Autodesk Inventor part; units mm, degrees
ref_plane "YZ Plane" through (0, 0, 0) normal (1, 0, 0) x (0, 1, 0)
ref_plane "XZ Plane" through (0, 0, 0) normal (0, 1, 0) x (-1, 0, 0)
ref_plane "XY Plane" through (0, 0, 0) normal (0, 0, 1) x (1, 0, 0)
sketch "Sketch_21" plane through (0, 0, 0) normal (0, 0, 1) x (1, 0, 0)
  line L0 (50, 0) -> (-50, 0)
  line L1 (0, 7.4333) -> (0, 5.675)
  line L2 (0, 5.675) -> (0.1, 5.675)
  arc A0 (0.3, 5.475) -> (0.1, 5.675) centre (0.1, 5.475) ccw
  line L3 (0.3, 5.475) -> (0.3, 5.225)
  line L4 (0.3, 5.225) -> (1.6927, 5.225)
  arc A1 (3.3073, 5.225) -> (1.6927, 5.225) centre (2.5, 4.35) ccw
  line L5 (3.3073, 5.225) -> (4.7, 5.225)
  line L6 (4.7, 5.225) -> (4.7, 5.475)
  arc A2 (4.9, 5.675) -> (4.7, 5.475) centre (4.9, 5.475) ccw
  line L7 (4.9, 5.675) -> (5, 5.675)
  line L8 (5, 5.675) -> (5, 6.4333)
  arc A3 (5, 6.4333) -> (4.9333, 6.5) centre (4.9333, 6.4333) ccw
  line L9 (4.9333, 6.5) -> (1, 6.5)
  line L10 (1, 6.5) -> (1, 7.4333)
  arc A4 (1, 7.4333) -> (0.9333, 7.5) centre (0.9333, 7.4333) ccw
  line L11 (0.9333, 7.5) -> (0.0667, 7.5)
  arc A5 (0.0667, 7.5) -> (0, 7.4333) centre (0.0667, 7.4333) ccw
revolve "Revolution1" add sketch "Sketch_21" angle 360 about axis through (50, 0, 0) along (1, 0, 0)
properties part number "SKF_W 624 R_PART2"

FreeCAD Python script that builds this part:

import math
import FreeCAD as App
import Part
import Sketcher

V = App.Vector
Q = App.Units.Quantity

doc = App.newDocument("Part")
params = doc.addObject("Spreadsheet::Sheet", "Params")
for row, (alias, value) in enumerate([
    ("sketch1_radius", "0.2 mm"),
    ("sketch1_width", "0.1 mm"),
    ("sketch1_height", "0.25 mm"),
    ("revolution_angle", "360 deg"),
], start=1):
    params.set(f"A{row}", alias)
    params.set(f"B{row}", "=" + value)
    params.setAlias(f"B{row}", alias)

body = doc.addObject("PartDesign::Body", "Body")

# Sketch on XY plane
sketch1 = doc.addObject("Sketcher::SketchObject", "Sketch")
body.addObject(sketch1)
sketch1.AttachmentSupport = (doc.XY_Plane, [""])
sketch1.MapMode = "FlatFace"
sketch1.addGeometry([
    Part.ArcOfCircle(Part.Circle(V(0.0667, 7.4333, 0), V(0, 0, 1), 0.0667), math.radians(90), math.radians(180)),  # 0
    Part.LineSegment(V(0, 7.4333, 0), V(0, 5.675, 0)),  # 1
    Part.LineSegment(V(0, 5.675, 0), V(0.1, 5.675, 0)),  # 2
    Part.ArcOfCircle(Part.Circle(V(0.1, 5.475, 0), V(0, 0, 1), 0.2), math.radians(0), math.radians(90)),  # 3
    Part.LineSegment(V(0.3, 5.475, 0), V(0.3, 5.225, 0)),  # 4
    Part.LineSegment(V(0.3, 5.225, 0), V(1.6927, 5.225, 0)),  # 5
    Part.ArcOfCircle(Part.Circle(V(2.5, 4.35, 0), V(0, 0, 1), 1.190529), math.radians(47.304483), math.radians(132.695517)),  # 6
    Part.LineSegment(V(3.3073, 5.225, 0), V(4.7, 5.225, 0)),  # 7
    Part.LineSegment(V(4.7, 5.225, 0), V(4.7, 5.475, 0)),  # 8
    Part.ArcOfCircle(Part.Circle(V(4.9, 5.475, 0), V(0, 0, 1), 0.2), math.radians(90), math.radians(180)),  # 9
    Part.LineSegment(V(4.9, 5.675, 0), V(5, 5.675, 0)),  # 10
    Part.LineSegment(V(5, 5.675, 0), V(5, 6.4333, 0)),  # 11
    Part.ArcOfCircle(Part.Circle(V(4.9333, 6.4333, 0), V(0, 0, 1), 0.0667), math.radians(0), math.radians(90)),  # 12
    Part.LineSegment(V(4.9333, 6.5, 0), V(1, 6.5, 0)),  # 13
    Part.LineSegment(V(1, 6.5, 0), V(1, 7.4333, 0)),  # 14
    Part.ArcOfCircle(Part.Circle(V(0.9333, 7.4333, 0), V(0, 0, 1), 0.0667), math.radians(0), math.radians(90)),  # 15
    Part.LineSegment(V(0.9333, 7.5, 0), V(0.0667, 7.5, 0)),  # 16
], False)
sketch1.addConstraint([
    Sketcher.Constraint("Tangent", 0, 2, 1, 1),
    Sketcher.Constraint("Coincident", 1, 2, 2, 1),
    Sketcher.Constraint("Tangent", 2, 2, 3, 2),
    Sketcher.Constraint("Tangent", 3, 1, 4, 1),
    Sketcher.Constraint("Coincident", 4, 2, 5, 1),
    Sketcher.Constraint("Coincident", 5, 2, 6, 2),
    Sketcher.Constraint("Coincident", 6, 1, 7, 1),
    Sketcher.Constraint("Coincident", 7, 2, 8, 1),
    Sketcher.Constraint("Tangent", 8, 2, 9, 2),
    Sketcher.Constraint("Tangent", 9, 1, 10, 1),
    Sketcher.Constraint("Coincident", 10, 2, 11, 1),
    Sketcher.Constraint("Tangent", 11, 2, 12, 1),
    Sketcher.Constraint("Tangent", 12, 2, 13, 1),
    Sketcher.Constraint("Coincident", 13, 2, 14, 1),
    Sketcher.Constraint("Tangent", 14, 2, 15, 1),
    Sketcher.Constraint("Tangent", 15, 2, 16, 1),
    Sketcher.Constraint("Tangent", 16, 2, 0, 1),
    Sketcher.Constraint("Vertical", 1),
    Sketcher.Constraint("Horizontal", 2),
    Sketcher.Constraint("Vertical", 4),
    Sketcher.Constraint("Horizontal", 5),
    Sketcher.Constraint("Horizontal", 7),
    Sketcher.Constraint("Vertical", 8),
    Sketcher.Constraint("Horizontal", 10),
    Sketcher.Constraint("Vertical", 11),
    Sketcher.Constraint("Horizontal", 13),
    Sketcher.Constraint("Vertical", 14),
    Sketcher.Constraint("Horizontal", 16),
    Sketcher.Constraint("Equal", 3, 9),
    Sketcher.Constraint("Equal", 0, 12),
    Sketcher.Constraint("Equal", 12, 15),
    Sketcher.Constraint("PointOnObject", 0, 2, -2),
    Sketcher.Constraint("Horizontal", 3, 3, 9, 3),
    Sketcher.Constraint("Horizontal", 5, 2, 6, 1),
    Sketcher.Constraint("Equal", 5, 7),
    Sketcher.Constraint("Equal", 2, 10),
    Sketcher.Constraint("Radius", 3, Q("0.2 mm")),
    Sketcher.Constraint("DistanceX", 2, 1, 2, 2, Q("0.1 mm")),
    Sketcher.Constraint("DistanceX", -1, 1, 10, 2, Q("5 mm")),
    Sketcher.Constraint("DistanceX", -1, 1, 13, 2, Q("1 mm")),
    Sketcher.Constraint("DistanceY", 12, 3, 0, 3, Q("1 mm")),
    Sketcher.Constraint("DistanceY", 4, 2, 4, 1, Q("0.25 mm")),
    Sketcher.Constraint("DistanceY", -1, 1, 12, 2, Q("6.5 mm")),
    Sketcher.Constraint("Radius", 0, Q("0.0667 mm")),
    Sketcher.Constraint("Radius", 6, Q("1.1905 mm")),
    Sketcher.Constraint("DistanceY", -1, 1, 6, 3, Q("4.35 mm")),
    Sketcher.Constraint("DistanceX", 5, 1, 5, 2, Q("1.3927 mm")),
])
sketch1.setExpression("Constraints[36]", "Params.sketch1_radius")
sketch1.setExpression("Constraints[37]", "Params.sketch1_width")
sketch1.setExpression("Constraints[41]", "Params.sketch1_height")
revolution = doc.addObject("PartDesign::Revolution", "Revolution")
body.addObject(revolution)
revolution.Profile = sketch1
revolution.ReferenceAxis = (sketch1, ["H_Axis"])
revolution.setExpression("Angle", "Params.revolution_angle")

doc.recompute()
